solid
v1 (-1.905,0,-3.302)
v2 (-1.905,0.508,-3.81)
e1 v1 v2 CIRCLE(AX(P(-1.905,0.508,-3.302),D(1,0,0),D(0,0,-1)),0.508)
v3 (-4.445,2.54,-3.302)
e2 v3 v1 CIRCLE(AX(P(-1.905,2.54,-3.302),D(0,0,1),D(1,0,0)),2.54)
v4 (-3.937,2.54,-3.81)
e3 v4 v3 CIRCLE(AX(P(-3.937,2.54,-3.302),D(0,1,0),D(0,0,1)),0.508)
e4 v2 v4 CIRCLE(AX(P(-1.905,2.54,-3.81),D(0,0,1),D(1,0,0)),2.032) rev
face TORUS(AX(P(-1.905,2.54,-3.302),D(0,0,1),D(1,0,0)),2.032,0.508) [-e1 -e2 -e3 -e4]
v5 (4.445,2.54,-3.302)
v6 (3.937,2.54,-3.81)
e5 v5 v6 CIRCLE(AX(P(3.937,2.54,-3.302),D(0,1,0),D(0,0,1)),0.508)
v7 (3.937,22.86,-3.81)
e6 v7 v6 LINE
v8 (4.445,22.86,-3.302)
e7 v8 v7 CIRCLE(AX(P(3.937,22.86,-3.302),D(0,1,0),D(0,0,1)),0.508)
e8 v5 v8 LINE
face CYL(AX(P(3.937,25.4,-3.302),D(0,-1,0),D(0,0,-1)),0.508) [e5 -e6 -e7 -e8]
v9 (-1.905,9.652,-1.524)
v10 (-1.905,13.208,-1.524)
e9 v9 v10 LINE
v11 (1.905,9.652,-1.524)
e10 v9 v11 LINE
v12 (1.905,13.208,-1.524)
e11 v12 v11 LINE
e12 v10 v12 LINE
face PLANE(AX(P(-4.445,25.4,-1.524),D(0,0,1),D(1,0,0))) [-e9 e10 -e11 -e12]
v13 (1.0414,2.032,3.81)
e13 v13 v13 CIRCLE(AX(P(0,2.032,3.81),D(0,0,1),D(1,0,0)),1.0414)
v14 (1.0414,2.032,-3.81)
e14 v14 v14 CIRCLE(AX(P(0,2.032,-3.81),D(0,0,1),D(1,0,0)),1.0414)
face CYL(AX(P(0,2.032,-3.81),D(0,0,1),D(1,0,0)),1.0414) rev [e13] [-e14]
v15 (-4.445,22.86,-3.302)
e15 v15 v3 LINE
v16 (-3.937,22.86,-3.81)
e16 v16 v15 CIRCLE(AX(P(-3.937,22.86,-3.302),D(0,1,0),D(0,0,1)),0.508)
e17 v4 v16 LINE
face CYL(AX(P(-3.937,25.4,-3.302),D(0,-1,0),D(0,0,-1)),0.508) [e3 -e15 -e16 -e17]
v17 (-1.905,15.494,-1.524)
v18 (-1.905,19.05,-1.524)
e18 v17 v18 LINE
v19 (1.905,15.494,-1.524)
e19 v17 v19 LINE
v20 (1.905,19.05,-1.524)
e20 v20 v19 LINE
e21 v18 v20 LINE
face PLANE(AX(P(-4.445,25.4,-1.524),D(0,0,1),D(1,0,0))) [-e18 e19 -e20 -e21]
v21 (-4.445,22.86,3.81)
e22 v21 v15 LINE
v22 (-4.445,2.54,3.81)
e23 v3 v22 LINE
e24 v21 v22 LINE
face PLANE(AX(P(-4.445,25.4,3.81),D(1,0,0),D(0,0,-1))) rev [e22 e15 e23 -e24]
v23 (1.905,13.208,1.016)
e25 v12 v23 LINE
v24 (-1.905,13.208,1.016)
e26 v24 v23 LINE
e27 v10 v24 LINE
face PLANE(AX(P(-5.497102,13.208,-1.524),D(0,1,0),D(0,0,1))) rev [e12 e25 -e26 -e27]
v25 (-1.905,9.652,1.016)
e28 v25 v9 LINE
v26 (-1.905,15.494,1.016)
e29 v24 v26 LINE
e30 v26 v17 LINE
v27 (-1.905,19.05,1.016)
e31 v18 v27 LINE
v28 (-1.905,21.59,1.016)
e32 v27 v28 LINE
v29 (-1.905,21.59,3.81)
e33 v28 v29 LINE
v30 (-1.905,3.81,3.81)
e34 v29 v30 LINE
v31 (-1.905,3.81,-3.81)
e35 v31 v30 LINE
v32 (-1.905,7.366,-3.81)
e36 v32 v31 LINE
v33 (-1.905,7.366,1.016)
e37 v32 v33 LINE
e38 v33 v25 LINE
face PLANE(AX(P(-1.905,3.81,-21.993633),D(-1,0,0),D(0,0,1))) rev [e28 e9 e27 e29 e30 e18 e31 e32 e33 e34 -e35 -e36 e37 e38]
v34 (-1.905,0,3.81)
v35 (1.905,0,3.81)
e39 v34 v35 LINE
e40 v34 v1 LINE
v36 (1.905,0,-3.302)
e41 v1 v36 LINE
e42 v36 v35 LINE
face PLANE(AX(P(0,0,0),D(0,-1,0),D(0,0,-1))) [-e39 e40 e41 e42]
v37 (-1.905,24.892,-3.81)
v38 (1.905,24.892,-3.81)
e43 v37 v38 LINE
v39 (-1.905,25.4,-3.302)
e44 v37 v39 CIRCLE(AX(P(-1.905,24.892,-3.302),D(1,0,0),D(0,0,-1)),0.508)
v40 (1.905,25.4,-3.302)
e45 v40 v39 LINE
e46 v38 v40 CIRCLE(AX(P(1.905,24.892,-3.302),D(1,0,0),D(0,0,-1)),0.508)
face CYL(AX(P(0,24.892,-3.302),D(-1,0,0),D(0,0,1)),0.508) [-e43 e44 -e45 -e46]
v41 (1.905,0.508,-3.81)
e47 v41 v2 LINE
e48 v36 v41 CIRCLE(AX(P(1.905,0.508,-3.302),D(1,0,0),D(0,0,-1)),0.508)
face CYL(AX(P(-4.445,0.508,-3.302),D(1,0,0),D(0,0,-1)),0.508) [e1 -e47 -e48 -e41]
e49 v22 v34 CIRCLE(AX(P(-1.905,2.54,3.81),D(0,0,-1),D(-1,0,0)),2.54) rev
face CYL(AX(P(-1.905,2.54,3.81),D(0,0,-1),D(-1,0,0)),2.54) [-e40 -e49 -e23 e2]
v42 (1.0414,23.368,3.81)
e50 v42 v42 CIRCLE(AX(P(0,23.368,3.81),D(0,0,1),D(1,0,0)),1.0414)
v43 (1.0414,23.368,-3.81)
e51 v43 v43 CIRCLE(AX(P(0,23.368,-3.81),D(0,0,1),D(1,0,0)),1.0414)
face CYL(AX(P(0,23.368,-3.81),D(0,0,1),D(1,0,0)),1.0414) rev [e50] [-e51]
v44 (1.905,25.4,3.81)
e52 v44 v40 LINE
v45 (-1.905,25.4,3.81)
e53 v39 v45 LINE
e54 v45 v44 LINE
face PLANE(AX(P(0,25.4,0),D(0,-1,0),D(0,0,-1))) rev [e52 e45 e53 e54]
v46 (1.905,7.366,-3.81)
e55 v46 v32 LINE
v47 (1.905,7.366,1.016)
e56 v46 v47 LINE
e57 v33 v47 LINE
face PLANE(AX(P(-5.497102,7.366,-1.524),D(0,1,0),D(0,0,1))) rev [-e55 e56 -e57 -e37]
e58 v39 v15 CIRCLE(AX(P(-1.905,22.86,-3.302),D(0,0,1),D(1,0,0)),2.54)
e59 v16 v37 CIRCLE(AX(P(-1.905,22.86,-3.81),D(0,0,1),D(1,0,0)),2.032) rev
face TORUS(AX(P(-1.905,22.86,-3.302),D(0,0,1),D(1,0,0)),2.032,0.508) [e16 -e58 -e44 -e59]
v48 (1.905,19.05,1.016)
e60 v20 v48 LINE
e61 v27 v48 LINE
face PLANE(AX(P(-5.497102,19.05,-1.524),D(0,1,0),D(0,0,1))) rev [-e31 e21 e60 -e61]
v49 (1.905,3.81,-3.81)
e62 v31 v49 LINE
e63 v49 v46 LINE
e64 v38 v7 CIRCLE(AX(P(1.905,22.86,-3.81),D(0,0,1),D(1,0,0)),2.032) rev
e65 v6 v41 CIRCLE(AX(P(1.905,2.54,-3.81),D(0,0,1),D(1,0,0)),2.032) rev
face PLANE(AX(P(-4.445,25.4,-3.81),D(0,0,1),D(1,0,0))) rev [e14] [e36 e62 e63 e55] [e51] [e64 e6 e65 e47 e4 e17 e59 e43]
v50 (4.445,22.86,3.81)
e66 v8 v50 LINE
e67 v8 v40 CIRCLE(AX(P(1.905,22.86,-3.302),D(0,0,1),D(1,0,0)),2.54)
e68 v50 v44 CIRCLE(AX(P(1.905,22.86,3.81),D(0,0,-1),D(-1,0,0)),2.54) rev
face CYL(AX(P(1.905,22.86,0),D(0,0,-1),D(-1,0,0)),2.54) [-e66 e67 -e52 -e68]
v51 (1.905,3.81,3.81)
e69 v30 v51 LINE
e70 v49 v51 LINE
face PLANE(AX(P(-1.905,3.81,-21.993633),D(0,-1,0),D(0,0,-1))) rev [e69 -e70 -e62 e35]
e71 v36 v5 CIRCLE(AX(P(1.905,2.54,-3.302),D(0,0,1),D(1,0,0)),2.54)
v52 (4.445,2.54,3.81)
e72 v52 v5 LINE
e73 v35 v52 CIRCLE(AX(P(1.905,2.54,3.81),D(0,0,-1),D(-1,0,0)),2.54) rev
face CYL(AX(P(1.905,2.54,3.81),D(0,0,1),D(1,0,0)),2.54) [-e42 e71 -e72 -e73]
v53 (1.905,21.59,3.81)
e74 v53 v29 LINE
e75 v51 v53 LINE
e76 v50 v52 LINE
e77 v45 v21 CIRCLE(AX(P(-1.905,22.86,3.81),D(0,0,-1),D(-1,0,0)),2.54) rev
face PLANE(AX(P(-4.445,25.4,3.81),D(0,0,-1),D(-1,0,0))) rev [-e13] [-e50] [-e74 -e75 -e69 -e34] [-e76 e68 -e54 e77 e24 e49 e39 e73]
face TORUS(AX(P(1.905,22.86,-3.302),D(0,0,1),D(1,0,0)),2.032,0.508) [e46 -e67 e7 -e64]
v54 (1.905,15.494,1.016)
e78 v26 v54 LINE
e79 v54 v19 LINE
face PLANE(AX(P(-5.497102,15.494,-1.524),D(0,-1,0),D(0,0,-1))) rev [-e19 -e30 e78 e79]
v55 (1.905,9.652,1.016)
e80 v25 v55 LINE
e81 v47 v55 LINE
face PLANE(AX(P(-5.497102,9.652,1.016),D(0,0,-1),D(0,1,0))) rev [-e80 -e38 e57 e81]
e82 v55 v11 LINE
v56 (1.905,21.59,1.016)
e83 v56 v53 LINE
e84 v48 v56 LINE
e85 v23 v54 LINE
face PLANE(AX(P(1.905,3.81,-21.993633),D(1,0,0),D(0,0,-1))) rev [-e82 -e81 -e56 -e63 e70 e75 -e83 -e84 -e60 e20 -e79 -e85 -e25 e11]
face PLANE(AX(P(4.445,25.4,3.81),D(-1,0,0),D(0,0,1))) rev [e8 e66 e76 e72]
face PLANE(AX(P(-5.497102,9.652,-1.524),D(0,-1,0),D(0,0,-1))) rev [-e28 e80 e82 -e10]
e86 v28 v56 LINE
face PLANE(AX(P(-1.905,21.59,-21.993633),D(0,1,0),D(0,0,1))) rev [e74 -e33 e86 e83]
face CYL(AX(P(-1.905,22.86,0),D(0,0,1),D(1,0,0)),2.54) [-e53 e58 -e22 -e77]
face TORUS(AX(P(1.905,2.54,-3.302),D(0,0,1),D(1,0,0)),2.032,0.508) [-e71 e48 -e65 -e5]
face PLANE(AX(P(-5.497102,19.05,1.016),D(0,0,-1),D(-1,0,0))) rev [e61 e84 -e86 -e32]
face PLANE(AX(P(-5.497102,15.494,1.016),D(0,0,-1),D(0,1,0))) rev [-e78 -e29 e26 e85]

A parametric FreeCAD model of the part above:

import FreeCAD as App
import Part
import Sketcher
from FreeCAD import Vector
Q = App.Units.Quantity


def edges_at(feature, points):
    """Names of the edges that pass closest to the given points."""
    edges = feature.Shape.Edges
    near = lambda p: min(range(len(edges)), key=lambda i: edges[i].distToShape(Part.Vertex(*p))[0])
    return sorted({f"Edge{near(p) + 1}" for p in points})

doc = App.newDocument("Part")
body = doc.addObject("PartDesign::Body", "Body")

# Sketch on XZ plane
sketch1 = doc.addObject("Sketcher::SketchObject", "Sketch")
body.addObject(sketch1)
sketch1.AttachmentSupport = (doc.XZ_Plane, [""])
sketch1.MapMode = "FlatFace"
sketch1.addGeometry(Part.LineSegment(Vector(-4, -4, 0), Vector(-4, 4, 0)), False)
sketch1.addGeometry(Part.LineSegment(Vector(-4, 4, 0), Vector(4, 4, 0)), False)
sketch1.addGeometry(Part.LineSegment(Vector(4, 4, 0), Vector(4, -4, 0)), False)
sketch1.addGeometry(Part.LineSegment(Vector(4, -4, 0), Vector(-4, -4, 0)), False)
sketch1.addConstraint(Sketcher.Constraint("Coincident", 0, 2, 1, 1))
sketch1.addConstraint(Sketcher.Constraint("Coincident", 1, 2, 2, 1))
sketch1.addConstraint(Sketcher.Constraint("Coincident", 2, 2, 3, 1))
sketch1.addConstraint(Sketcher.Constraint("Coincident", 3, 2, 0, 1))
sketch1.addConstraint(Sketcher.Constraint("Vertical", 0))
sketch1.addConstraint(Sketcher.Constraint("Horizontal", 1))
sketch1.addConstraint(Sketcher.Constraint("Vertical", 2))
sketch1.addConstraint(Sketcher.Constraint("Horizontal", 3))
sketch1.addConstraint(Sketcher.Constraint("Symmetric", 0, 2, 2, 2, -1, 1))
sketch1.addConstraint(Sketcher.Constraint("DistanceY", 0, 1, 0, 2, Q("0.3 in")))
sketch1.addConstraint(Sketcher.Constraint("DistanceX", 1, 1, 1, 2, Q("0.35 in")))
pad1 = doc.addObject("PartDesign::Pad", "Pad")
body.addObject(pad1)
pad1.Profile = sketch1
pad1.Length = Q("1 in")
pad1.Reversed = True

# Sketch on XY plane
sketch2 = doc.addObject("Sketcher::SketchObject", "Sketch001")
body.addObject(sketch2)
sketch2.AttachmentSupport = (doc.XY_Plane, [""])
sketch2.MapMode = "FlatFace"
sketch2.AttachmentOffset = App.Placement(Vector(0, 0, 0.15 * 25.4), App.Rotation())
sketch2.addGeometry(Part.LineSegment(Vector(-1.9, 21.6, 0), Vector(-1.9, 3.8, 0)), False)
sketch2.addGeometry(Part.LineSegment(Vector(-1.9, 3.8, 0), Vector(1.9, 3.8, 0)), False)
sketch2.addGeometry(Part.LineSegment(Vector(1.9, 3.8, 0), Vector(1.9, 21.6, 0)), False)
sketch2.addGeometry(Part.LineSegment(Vector(1.9, 21.6, 0), Vector(-1.9, 21.6, 0)), False)
sketch2.addConstraint(Sketcher.Constraint("Coincident", 0, 2, 1, 1))
sketch2.addConstraint(Sketcher.Constraint("Coincident", 1, 2, 2, 1))
sketch2.addConstraint(Sketcher.Constraint("Coincident", 2, 2, 3, 1))
sketch2.addConstraint(Sketcher.Constraint("Coincident", 3, 2, 0, 1))
sketch2.addConstraint(Sketcher.Constraint("Vertical", 0))
sketch2.addConstraint(Sketcher.Constraint("Horizontal", 1))
sketch2.addConstraint(Sketcher.Constraint("Vertical", 2))
sketch2.addConstraint(Sketcher.Constraint("Horizontal", 3))
sketch2.addConstraint(Sketcher.Constraint("DistanceY", 0, 2, 0, 1, Q("0.7 in")))
sketch2.addConstraint(Sketcher.Constraint("DistanceX", 1, 1, 1, 2, Q("0.15 in")))
sketch2.addConstraint(Sketcher.Constraint("DistanceY", -1, 1, 0, 2, Q("0.15 in")))
sketch2.addConstraint(Sketcher.Constraint("DistanceX", 0, 2, -1, 1, Q("0.075 in")))
pocket1 = doc.addObject("PartDesign::Pocket", "Pocket")
body.addObject(pocket1)
pocket1.Profile = sketch2
pocket1.Length = Q("0.21 in")

# Sketch on YZ plane
sketch3 = doc.addObject("Sketcher::SketchObject", "Sketch002")
body.addObject(sketch3)
sketch3.AttachmentSupport = (doc.YZ_Plane, [""])
sketch3.MapMode = "FlatFace"
sketch3.AttachmentOffset = App.Placement(Vector(0, 0, 0.075 * 25.4), App.Rotation())
sketch3.addGeometry(Part.LineSegment(Vector(15.5, -1.5, 0), Vector(13.2, -1.5, 0)), False)
sketch3.addGeometry(Part.LineSegment(Vector(13.2, -1.5, 0), Vector(13.2, 1, 0)), False)
sketch3.addGeometry(Part.LineSegment(Vector(13.2, 1, 0), Vector(15.5, 1, 0)), False)
sketch3.addGeometry(Part.LineSegment(Vector(15.5, 1, 0), Vector(15.5, -1.5, 0)), False)
sketch3.addGeometry(Part.LineSegment(Vector(9.7, -1.5, 0), Vector(7.4, -1.5, 0)), False)
sketch3.addGeometry(Part.LineSegment(Vector(7.4, -1.5, 0), Vector(7.4, 1, 0)), False)
sketch3.addGeometry(Part.LineSegment(Vector(7.4, 1, 0), Vector(9.7, 1, 0)), False)
sketch3.addGeometry(Part.LineSegment(Vector(9.7, 1, 0), Vector(9.7, -1.5, 0)), False)
sketch3.addGeometry(Part.LineSegment(Vector(21.6, -1.5, 0), Vector(19.1, -1.5, 0)), False)
sketch3.addGeometry(Part.LineSegment(Vector(19.1, -1.5, 0), Vector(19.1, 1, 0)), False)
sketch3.addGeometry(Part.LineSegment(Vector(19.1, 1, 0), Vector(21.6, 1, 0)), False)
sketch3.addGeometry(Part.LineSegment(Vector(21.6, 1, 0), Vector(21.6, -1.5, 0)), False)
sketch3.addConstraint(Sketcher.Constraint("Coincident", 0, 2, 1, 1))
sketch3.addConstraint(Sketcher.Constraint("Coincident", 1, 2, 2, 1))
sketch3.addConstraint(Sketcher.Constraint("Coincident", 2, 2, 3, 1))
sketch3.addConstraint(Sketcher.Constraint("Coincident", 3, 2, 0, 1))
sketch3.addConstraint(Sketcher.Constraint("Coincident", 4, 2, 5, 1))
sketch3.addConstraint(Sketcher.Constraint("Coincident", 5, 2, 6, 1))
sketch3.addConstraint(Sketcher.Constraint("Coincident", 6, 2, 7, 1))
sketch3.addConstraint(Sketcher.Constraint("Coincident", 7, 2, 4, 1))
sketch3.addConstraint(Sketcher.Constraint("Coincident", 8, 2, 9, 1))
sketch3.addConstraint(Sketcher.Constraint("Coincident", 9, 2, 10, 1))
sketch3.addConstraint(Sketcher.Constraint("Coincident", 10, 2, 11, 1))
sketch3.addConstraint(Sketcher.Constraint("Coincident", 11, 2, 8, 1))
sketch3.addConstraint(Sketcher.Constraint("Horizontal", 0))
sketch3.addConstraint(Sketcher.Constraint("Vertical", 1))
sketch3.addConstraint(Sketcher.Constraint("Horizontal", 2))
sketch3.addConstraint(Sketcher.Constraint("Vertical", 3))
sketch3.addConstraint(Sketcher.Constraint("Horizontal", 4))
sketch3.addConstraint(Sketcher.Constraint("Vertical", 5))
sketch3.addConstraint(Sketcher.Constraint("Horizontal", 6))
sketch3.addConstraint(Sketcher.Constraint("Vertical", 7))
sketch3.addConstraint(Sketcher.Constraint("Horizontal", 8))
sketch3.addConstraint(Sketcher.Constraint("Vertical", 9))
sketch3.addConstraint(Sketcher.Constraint("Horizontal", 10))
sketch3.addConstraint(Sketcher.Constraint("Vertical", 11))
sketch3.addConstraint(Sketcher.Constraint("Horizontal", 3, 2, 4, 2))
sketch3.addConstraint(Sketcher.Constraint("Horizontal", 2, 2, 5, 2))
sketch3.addConstraint(Sketcher.Constraint("Horizontal", 7, 2, 8, 2))
sketch3.addConstraint(Sketcher.Constraint("Horizontal", 6, 2, 9, 2))
sketch3.addConstraint(Sketcher.Constraint("Equal", 2, 4))
sketch3.addConstraint(Sketcher.Constraint("Equal", 10, 1))
sketch3.addConstraint(Sketcher.Constraint("DistanceX", 8, 2, 8, 1, Q("0.1 in")))
sketch3.addConstraint(Sketcher.Constraint("DistanceX", 0, 2, 0, 1, Q("0.09 in")))
sketch3.addConstraint(Sketcher.Constraint("DistanceX", -1, 1, 0, 2, Q("0.52 in")))
sketch3.addConstraint(Sketcher.Constraint("DistanceY", 0, 2, -1, 1, Q("0.06 in")))
sketch3.addConstraint(Sketcher.Constraint("DistanceX", -1, 1, 4, 2, Q("0.29 in")))
sketch3.addConstraint(Sketcher.Constraint("DistanceX", -1, 1, 8, 2, Q("0.75 in")))
pad2 = doc.addObject("PartDesign::Pad", "Pad001")
body.addObject(pad2)
pad2.Profile = sketch3
pad2.Length = Q("0.15 in")
pad2.Reversed = True

# Sketch on XY plane
sketch4 = doc.addObject("Sketcher::SketchObject", "Sketch003")
body.addObject(sketch4)
sketch4.AttachmentSupport = (doc.XY_Plane, [""])
sketch4.MapMode = "FlatFace"
sketch4.AttachmentOffset = App.Placement(Vector(0, 0, -0.06 * 25.4), App.Rotation())
sketch4.addGeometry(Part.LineSegment(Vector(-1.9, 7.4, 0), Vector(-1.9, 3.8, 0)), False)
sketch4.addGeometry(Part.LineSegment(Vector(-1.9, 3.8, 0), Vector(1.9, 3.8, 0)), False)
sketch4.addGeometry(Part.LineSegment(Vector(1.9, 3.8, 0), Vector(1.9, 7.4, 0)), False)
sketch4.addGeometry(Part.LineSegment(Vector(1.9, 7.4, 0), Vector(-1.9, 7.4, 0)), False)
sketch4.addConstraint(Sketcher.Constraint("Coincident", 0, 2, 1, 1))
sketch4.addConstraint(Sketcher.Constraint("Coincident", 1, 2, 2, 1))
sketch4.addConstraint(Sketcher.Constraint("Coincident", 2, 2, 3, 1))
sketch4.addConstraint(Sketcher.Constraint("Coincident", 3, 2, 0, 1))
sketch4.addConstraint(Sketcher.Constraint("Vertical", 0))
sketch4.addConstraint(Sketcher.Constraint("Horizontal", 1))
sketch4.addConstraint(Sketcher.Constraint("Vertical", 2))
sketch4.addConstraint(Sketcher.Constraint("Horizontal", 3))
sketch4.addConstraint(Sketcher.Constraint("DistanceX", 1, 1, 1, 2, Q("0.15 in")))
sketch4.addConstraint(Sketcher.Constraint("DistanceY", 0, 2, 0, 1, Q("0.14 in")))
sketch4.addConstraint(Sketcher.Constraint("DistanceY", -1, 1, 0, 2, Q("0.15 in")))
sketch4.addConstraint(Sketcher.Constraint("DistanceX", 0, 2, -1, 1, Q("0.075 in")))
pocket2 = doc.addObject("PartDesign::Pocket", "Pocket001")
body.addObject(pocket2)
pocket2.Profile = sketch4
pocket2.Type = "ThroughAll"

# Sketch on XY plane
sketch5 = doc.addObject("Sketcher::SketchObject", "Sketch004")
body.addObject(sketch5)
sketch5.AttachmentSupport = (doc.XY_Plane, [""])
sketch5.MapMode = "FlatFace"
sketch5.AttachmentOffset = App.Placement(Vector(0, 0, 0.15 * 25.4), App.Rotation())
sketch5.addGeometry(Part.Circle(Vector(0, 2, 0), Vector(0, 0, 1), 1), False)
sketch5.addGeometry(Part.Circle(Vector(0, 23.4, 0), Vector(0, 0, 1), 1), False)
sketch5.addConstraint(Sketcher.Constraint("Equal", 0, 1))
sketch5.addConstraint(Sketcher.Constraint("PointOnObject", 0, 3, -2))
sketch5.addConstraint(Sketcher.Constraint("PointOnObject", 1, 3, -2))
sketch5.addConstraint(Sketcher.Constraint("Diameter", 0, Q("0.082 in")))
sketch5.addConstraint(Sketcher.Constraint("DistanceY", -1, 1, 0, 3, Q("0.08 in")))
sketch5.addConstraint(Sketcher.Constraint("DistanceY", -1, 1, 1, 3, Q("0.92 in")))
pocket3 = doc.addObject("PartDesign::Pocket", "Pocket002")
body.addObject(pocket3)
pocket3.Profile = sketch5
pocket3.Type = "ThroughAll"
doc.recompute()

fillet = doc.addObject("PartDesign::Fillet", "Fillet")
body.addObject(fillet)
fillet.Base = (pocket3, edges_at(pocket3, [
    (-4.445, 25.4, 0),
    (4.445, 25.4, 0),
    (-4.445, 0, 0),
    (4.445, 0, 0),
]))
fillet.Radius = Q("0.1 in")
doc.recompute()

fillet2 = doc.addObject("PartDesign::Fillet", "Fillet001")
body.addObject(fillet2)
fillet2.Base = (fillet, edges_at(fillet, [
    (0, 25.4, -3.81),
    (4.445, 12.7, -3.81),
    (-3.701, 24.656, -3.81),
    (3.701, 24.656, -3.81),
    (3.701, 0.744, -3.81),
    (-3.701, 0.744, -3.81),
    (-4.445, 12.7, -3.81),
    (0, 0, -3.81),
]))
fillet2.Radius = Q("0.02 in")

doc.recompute()
